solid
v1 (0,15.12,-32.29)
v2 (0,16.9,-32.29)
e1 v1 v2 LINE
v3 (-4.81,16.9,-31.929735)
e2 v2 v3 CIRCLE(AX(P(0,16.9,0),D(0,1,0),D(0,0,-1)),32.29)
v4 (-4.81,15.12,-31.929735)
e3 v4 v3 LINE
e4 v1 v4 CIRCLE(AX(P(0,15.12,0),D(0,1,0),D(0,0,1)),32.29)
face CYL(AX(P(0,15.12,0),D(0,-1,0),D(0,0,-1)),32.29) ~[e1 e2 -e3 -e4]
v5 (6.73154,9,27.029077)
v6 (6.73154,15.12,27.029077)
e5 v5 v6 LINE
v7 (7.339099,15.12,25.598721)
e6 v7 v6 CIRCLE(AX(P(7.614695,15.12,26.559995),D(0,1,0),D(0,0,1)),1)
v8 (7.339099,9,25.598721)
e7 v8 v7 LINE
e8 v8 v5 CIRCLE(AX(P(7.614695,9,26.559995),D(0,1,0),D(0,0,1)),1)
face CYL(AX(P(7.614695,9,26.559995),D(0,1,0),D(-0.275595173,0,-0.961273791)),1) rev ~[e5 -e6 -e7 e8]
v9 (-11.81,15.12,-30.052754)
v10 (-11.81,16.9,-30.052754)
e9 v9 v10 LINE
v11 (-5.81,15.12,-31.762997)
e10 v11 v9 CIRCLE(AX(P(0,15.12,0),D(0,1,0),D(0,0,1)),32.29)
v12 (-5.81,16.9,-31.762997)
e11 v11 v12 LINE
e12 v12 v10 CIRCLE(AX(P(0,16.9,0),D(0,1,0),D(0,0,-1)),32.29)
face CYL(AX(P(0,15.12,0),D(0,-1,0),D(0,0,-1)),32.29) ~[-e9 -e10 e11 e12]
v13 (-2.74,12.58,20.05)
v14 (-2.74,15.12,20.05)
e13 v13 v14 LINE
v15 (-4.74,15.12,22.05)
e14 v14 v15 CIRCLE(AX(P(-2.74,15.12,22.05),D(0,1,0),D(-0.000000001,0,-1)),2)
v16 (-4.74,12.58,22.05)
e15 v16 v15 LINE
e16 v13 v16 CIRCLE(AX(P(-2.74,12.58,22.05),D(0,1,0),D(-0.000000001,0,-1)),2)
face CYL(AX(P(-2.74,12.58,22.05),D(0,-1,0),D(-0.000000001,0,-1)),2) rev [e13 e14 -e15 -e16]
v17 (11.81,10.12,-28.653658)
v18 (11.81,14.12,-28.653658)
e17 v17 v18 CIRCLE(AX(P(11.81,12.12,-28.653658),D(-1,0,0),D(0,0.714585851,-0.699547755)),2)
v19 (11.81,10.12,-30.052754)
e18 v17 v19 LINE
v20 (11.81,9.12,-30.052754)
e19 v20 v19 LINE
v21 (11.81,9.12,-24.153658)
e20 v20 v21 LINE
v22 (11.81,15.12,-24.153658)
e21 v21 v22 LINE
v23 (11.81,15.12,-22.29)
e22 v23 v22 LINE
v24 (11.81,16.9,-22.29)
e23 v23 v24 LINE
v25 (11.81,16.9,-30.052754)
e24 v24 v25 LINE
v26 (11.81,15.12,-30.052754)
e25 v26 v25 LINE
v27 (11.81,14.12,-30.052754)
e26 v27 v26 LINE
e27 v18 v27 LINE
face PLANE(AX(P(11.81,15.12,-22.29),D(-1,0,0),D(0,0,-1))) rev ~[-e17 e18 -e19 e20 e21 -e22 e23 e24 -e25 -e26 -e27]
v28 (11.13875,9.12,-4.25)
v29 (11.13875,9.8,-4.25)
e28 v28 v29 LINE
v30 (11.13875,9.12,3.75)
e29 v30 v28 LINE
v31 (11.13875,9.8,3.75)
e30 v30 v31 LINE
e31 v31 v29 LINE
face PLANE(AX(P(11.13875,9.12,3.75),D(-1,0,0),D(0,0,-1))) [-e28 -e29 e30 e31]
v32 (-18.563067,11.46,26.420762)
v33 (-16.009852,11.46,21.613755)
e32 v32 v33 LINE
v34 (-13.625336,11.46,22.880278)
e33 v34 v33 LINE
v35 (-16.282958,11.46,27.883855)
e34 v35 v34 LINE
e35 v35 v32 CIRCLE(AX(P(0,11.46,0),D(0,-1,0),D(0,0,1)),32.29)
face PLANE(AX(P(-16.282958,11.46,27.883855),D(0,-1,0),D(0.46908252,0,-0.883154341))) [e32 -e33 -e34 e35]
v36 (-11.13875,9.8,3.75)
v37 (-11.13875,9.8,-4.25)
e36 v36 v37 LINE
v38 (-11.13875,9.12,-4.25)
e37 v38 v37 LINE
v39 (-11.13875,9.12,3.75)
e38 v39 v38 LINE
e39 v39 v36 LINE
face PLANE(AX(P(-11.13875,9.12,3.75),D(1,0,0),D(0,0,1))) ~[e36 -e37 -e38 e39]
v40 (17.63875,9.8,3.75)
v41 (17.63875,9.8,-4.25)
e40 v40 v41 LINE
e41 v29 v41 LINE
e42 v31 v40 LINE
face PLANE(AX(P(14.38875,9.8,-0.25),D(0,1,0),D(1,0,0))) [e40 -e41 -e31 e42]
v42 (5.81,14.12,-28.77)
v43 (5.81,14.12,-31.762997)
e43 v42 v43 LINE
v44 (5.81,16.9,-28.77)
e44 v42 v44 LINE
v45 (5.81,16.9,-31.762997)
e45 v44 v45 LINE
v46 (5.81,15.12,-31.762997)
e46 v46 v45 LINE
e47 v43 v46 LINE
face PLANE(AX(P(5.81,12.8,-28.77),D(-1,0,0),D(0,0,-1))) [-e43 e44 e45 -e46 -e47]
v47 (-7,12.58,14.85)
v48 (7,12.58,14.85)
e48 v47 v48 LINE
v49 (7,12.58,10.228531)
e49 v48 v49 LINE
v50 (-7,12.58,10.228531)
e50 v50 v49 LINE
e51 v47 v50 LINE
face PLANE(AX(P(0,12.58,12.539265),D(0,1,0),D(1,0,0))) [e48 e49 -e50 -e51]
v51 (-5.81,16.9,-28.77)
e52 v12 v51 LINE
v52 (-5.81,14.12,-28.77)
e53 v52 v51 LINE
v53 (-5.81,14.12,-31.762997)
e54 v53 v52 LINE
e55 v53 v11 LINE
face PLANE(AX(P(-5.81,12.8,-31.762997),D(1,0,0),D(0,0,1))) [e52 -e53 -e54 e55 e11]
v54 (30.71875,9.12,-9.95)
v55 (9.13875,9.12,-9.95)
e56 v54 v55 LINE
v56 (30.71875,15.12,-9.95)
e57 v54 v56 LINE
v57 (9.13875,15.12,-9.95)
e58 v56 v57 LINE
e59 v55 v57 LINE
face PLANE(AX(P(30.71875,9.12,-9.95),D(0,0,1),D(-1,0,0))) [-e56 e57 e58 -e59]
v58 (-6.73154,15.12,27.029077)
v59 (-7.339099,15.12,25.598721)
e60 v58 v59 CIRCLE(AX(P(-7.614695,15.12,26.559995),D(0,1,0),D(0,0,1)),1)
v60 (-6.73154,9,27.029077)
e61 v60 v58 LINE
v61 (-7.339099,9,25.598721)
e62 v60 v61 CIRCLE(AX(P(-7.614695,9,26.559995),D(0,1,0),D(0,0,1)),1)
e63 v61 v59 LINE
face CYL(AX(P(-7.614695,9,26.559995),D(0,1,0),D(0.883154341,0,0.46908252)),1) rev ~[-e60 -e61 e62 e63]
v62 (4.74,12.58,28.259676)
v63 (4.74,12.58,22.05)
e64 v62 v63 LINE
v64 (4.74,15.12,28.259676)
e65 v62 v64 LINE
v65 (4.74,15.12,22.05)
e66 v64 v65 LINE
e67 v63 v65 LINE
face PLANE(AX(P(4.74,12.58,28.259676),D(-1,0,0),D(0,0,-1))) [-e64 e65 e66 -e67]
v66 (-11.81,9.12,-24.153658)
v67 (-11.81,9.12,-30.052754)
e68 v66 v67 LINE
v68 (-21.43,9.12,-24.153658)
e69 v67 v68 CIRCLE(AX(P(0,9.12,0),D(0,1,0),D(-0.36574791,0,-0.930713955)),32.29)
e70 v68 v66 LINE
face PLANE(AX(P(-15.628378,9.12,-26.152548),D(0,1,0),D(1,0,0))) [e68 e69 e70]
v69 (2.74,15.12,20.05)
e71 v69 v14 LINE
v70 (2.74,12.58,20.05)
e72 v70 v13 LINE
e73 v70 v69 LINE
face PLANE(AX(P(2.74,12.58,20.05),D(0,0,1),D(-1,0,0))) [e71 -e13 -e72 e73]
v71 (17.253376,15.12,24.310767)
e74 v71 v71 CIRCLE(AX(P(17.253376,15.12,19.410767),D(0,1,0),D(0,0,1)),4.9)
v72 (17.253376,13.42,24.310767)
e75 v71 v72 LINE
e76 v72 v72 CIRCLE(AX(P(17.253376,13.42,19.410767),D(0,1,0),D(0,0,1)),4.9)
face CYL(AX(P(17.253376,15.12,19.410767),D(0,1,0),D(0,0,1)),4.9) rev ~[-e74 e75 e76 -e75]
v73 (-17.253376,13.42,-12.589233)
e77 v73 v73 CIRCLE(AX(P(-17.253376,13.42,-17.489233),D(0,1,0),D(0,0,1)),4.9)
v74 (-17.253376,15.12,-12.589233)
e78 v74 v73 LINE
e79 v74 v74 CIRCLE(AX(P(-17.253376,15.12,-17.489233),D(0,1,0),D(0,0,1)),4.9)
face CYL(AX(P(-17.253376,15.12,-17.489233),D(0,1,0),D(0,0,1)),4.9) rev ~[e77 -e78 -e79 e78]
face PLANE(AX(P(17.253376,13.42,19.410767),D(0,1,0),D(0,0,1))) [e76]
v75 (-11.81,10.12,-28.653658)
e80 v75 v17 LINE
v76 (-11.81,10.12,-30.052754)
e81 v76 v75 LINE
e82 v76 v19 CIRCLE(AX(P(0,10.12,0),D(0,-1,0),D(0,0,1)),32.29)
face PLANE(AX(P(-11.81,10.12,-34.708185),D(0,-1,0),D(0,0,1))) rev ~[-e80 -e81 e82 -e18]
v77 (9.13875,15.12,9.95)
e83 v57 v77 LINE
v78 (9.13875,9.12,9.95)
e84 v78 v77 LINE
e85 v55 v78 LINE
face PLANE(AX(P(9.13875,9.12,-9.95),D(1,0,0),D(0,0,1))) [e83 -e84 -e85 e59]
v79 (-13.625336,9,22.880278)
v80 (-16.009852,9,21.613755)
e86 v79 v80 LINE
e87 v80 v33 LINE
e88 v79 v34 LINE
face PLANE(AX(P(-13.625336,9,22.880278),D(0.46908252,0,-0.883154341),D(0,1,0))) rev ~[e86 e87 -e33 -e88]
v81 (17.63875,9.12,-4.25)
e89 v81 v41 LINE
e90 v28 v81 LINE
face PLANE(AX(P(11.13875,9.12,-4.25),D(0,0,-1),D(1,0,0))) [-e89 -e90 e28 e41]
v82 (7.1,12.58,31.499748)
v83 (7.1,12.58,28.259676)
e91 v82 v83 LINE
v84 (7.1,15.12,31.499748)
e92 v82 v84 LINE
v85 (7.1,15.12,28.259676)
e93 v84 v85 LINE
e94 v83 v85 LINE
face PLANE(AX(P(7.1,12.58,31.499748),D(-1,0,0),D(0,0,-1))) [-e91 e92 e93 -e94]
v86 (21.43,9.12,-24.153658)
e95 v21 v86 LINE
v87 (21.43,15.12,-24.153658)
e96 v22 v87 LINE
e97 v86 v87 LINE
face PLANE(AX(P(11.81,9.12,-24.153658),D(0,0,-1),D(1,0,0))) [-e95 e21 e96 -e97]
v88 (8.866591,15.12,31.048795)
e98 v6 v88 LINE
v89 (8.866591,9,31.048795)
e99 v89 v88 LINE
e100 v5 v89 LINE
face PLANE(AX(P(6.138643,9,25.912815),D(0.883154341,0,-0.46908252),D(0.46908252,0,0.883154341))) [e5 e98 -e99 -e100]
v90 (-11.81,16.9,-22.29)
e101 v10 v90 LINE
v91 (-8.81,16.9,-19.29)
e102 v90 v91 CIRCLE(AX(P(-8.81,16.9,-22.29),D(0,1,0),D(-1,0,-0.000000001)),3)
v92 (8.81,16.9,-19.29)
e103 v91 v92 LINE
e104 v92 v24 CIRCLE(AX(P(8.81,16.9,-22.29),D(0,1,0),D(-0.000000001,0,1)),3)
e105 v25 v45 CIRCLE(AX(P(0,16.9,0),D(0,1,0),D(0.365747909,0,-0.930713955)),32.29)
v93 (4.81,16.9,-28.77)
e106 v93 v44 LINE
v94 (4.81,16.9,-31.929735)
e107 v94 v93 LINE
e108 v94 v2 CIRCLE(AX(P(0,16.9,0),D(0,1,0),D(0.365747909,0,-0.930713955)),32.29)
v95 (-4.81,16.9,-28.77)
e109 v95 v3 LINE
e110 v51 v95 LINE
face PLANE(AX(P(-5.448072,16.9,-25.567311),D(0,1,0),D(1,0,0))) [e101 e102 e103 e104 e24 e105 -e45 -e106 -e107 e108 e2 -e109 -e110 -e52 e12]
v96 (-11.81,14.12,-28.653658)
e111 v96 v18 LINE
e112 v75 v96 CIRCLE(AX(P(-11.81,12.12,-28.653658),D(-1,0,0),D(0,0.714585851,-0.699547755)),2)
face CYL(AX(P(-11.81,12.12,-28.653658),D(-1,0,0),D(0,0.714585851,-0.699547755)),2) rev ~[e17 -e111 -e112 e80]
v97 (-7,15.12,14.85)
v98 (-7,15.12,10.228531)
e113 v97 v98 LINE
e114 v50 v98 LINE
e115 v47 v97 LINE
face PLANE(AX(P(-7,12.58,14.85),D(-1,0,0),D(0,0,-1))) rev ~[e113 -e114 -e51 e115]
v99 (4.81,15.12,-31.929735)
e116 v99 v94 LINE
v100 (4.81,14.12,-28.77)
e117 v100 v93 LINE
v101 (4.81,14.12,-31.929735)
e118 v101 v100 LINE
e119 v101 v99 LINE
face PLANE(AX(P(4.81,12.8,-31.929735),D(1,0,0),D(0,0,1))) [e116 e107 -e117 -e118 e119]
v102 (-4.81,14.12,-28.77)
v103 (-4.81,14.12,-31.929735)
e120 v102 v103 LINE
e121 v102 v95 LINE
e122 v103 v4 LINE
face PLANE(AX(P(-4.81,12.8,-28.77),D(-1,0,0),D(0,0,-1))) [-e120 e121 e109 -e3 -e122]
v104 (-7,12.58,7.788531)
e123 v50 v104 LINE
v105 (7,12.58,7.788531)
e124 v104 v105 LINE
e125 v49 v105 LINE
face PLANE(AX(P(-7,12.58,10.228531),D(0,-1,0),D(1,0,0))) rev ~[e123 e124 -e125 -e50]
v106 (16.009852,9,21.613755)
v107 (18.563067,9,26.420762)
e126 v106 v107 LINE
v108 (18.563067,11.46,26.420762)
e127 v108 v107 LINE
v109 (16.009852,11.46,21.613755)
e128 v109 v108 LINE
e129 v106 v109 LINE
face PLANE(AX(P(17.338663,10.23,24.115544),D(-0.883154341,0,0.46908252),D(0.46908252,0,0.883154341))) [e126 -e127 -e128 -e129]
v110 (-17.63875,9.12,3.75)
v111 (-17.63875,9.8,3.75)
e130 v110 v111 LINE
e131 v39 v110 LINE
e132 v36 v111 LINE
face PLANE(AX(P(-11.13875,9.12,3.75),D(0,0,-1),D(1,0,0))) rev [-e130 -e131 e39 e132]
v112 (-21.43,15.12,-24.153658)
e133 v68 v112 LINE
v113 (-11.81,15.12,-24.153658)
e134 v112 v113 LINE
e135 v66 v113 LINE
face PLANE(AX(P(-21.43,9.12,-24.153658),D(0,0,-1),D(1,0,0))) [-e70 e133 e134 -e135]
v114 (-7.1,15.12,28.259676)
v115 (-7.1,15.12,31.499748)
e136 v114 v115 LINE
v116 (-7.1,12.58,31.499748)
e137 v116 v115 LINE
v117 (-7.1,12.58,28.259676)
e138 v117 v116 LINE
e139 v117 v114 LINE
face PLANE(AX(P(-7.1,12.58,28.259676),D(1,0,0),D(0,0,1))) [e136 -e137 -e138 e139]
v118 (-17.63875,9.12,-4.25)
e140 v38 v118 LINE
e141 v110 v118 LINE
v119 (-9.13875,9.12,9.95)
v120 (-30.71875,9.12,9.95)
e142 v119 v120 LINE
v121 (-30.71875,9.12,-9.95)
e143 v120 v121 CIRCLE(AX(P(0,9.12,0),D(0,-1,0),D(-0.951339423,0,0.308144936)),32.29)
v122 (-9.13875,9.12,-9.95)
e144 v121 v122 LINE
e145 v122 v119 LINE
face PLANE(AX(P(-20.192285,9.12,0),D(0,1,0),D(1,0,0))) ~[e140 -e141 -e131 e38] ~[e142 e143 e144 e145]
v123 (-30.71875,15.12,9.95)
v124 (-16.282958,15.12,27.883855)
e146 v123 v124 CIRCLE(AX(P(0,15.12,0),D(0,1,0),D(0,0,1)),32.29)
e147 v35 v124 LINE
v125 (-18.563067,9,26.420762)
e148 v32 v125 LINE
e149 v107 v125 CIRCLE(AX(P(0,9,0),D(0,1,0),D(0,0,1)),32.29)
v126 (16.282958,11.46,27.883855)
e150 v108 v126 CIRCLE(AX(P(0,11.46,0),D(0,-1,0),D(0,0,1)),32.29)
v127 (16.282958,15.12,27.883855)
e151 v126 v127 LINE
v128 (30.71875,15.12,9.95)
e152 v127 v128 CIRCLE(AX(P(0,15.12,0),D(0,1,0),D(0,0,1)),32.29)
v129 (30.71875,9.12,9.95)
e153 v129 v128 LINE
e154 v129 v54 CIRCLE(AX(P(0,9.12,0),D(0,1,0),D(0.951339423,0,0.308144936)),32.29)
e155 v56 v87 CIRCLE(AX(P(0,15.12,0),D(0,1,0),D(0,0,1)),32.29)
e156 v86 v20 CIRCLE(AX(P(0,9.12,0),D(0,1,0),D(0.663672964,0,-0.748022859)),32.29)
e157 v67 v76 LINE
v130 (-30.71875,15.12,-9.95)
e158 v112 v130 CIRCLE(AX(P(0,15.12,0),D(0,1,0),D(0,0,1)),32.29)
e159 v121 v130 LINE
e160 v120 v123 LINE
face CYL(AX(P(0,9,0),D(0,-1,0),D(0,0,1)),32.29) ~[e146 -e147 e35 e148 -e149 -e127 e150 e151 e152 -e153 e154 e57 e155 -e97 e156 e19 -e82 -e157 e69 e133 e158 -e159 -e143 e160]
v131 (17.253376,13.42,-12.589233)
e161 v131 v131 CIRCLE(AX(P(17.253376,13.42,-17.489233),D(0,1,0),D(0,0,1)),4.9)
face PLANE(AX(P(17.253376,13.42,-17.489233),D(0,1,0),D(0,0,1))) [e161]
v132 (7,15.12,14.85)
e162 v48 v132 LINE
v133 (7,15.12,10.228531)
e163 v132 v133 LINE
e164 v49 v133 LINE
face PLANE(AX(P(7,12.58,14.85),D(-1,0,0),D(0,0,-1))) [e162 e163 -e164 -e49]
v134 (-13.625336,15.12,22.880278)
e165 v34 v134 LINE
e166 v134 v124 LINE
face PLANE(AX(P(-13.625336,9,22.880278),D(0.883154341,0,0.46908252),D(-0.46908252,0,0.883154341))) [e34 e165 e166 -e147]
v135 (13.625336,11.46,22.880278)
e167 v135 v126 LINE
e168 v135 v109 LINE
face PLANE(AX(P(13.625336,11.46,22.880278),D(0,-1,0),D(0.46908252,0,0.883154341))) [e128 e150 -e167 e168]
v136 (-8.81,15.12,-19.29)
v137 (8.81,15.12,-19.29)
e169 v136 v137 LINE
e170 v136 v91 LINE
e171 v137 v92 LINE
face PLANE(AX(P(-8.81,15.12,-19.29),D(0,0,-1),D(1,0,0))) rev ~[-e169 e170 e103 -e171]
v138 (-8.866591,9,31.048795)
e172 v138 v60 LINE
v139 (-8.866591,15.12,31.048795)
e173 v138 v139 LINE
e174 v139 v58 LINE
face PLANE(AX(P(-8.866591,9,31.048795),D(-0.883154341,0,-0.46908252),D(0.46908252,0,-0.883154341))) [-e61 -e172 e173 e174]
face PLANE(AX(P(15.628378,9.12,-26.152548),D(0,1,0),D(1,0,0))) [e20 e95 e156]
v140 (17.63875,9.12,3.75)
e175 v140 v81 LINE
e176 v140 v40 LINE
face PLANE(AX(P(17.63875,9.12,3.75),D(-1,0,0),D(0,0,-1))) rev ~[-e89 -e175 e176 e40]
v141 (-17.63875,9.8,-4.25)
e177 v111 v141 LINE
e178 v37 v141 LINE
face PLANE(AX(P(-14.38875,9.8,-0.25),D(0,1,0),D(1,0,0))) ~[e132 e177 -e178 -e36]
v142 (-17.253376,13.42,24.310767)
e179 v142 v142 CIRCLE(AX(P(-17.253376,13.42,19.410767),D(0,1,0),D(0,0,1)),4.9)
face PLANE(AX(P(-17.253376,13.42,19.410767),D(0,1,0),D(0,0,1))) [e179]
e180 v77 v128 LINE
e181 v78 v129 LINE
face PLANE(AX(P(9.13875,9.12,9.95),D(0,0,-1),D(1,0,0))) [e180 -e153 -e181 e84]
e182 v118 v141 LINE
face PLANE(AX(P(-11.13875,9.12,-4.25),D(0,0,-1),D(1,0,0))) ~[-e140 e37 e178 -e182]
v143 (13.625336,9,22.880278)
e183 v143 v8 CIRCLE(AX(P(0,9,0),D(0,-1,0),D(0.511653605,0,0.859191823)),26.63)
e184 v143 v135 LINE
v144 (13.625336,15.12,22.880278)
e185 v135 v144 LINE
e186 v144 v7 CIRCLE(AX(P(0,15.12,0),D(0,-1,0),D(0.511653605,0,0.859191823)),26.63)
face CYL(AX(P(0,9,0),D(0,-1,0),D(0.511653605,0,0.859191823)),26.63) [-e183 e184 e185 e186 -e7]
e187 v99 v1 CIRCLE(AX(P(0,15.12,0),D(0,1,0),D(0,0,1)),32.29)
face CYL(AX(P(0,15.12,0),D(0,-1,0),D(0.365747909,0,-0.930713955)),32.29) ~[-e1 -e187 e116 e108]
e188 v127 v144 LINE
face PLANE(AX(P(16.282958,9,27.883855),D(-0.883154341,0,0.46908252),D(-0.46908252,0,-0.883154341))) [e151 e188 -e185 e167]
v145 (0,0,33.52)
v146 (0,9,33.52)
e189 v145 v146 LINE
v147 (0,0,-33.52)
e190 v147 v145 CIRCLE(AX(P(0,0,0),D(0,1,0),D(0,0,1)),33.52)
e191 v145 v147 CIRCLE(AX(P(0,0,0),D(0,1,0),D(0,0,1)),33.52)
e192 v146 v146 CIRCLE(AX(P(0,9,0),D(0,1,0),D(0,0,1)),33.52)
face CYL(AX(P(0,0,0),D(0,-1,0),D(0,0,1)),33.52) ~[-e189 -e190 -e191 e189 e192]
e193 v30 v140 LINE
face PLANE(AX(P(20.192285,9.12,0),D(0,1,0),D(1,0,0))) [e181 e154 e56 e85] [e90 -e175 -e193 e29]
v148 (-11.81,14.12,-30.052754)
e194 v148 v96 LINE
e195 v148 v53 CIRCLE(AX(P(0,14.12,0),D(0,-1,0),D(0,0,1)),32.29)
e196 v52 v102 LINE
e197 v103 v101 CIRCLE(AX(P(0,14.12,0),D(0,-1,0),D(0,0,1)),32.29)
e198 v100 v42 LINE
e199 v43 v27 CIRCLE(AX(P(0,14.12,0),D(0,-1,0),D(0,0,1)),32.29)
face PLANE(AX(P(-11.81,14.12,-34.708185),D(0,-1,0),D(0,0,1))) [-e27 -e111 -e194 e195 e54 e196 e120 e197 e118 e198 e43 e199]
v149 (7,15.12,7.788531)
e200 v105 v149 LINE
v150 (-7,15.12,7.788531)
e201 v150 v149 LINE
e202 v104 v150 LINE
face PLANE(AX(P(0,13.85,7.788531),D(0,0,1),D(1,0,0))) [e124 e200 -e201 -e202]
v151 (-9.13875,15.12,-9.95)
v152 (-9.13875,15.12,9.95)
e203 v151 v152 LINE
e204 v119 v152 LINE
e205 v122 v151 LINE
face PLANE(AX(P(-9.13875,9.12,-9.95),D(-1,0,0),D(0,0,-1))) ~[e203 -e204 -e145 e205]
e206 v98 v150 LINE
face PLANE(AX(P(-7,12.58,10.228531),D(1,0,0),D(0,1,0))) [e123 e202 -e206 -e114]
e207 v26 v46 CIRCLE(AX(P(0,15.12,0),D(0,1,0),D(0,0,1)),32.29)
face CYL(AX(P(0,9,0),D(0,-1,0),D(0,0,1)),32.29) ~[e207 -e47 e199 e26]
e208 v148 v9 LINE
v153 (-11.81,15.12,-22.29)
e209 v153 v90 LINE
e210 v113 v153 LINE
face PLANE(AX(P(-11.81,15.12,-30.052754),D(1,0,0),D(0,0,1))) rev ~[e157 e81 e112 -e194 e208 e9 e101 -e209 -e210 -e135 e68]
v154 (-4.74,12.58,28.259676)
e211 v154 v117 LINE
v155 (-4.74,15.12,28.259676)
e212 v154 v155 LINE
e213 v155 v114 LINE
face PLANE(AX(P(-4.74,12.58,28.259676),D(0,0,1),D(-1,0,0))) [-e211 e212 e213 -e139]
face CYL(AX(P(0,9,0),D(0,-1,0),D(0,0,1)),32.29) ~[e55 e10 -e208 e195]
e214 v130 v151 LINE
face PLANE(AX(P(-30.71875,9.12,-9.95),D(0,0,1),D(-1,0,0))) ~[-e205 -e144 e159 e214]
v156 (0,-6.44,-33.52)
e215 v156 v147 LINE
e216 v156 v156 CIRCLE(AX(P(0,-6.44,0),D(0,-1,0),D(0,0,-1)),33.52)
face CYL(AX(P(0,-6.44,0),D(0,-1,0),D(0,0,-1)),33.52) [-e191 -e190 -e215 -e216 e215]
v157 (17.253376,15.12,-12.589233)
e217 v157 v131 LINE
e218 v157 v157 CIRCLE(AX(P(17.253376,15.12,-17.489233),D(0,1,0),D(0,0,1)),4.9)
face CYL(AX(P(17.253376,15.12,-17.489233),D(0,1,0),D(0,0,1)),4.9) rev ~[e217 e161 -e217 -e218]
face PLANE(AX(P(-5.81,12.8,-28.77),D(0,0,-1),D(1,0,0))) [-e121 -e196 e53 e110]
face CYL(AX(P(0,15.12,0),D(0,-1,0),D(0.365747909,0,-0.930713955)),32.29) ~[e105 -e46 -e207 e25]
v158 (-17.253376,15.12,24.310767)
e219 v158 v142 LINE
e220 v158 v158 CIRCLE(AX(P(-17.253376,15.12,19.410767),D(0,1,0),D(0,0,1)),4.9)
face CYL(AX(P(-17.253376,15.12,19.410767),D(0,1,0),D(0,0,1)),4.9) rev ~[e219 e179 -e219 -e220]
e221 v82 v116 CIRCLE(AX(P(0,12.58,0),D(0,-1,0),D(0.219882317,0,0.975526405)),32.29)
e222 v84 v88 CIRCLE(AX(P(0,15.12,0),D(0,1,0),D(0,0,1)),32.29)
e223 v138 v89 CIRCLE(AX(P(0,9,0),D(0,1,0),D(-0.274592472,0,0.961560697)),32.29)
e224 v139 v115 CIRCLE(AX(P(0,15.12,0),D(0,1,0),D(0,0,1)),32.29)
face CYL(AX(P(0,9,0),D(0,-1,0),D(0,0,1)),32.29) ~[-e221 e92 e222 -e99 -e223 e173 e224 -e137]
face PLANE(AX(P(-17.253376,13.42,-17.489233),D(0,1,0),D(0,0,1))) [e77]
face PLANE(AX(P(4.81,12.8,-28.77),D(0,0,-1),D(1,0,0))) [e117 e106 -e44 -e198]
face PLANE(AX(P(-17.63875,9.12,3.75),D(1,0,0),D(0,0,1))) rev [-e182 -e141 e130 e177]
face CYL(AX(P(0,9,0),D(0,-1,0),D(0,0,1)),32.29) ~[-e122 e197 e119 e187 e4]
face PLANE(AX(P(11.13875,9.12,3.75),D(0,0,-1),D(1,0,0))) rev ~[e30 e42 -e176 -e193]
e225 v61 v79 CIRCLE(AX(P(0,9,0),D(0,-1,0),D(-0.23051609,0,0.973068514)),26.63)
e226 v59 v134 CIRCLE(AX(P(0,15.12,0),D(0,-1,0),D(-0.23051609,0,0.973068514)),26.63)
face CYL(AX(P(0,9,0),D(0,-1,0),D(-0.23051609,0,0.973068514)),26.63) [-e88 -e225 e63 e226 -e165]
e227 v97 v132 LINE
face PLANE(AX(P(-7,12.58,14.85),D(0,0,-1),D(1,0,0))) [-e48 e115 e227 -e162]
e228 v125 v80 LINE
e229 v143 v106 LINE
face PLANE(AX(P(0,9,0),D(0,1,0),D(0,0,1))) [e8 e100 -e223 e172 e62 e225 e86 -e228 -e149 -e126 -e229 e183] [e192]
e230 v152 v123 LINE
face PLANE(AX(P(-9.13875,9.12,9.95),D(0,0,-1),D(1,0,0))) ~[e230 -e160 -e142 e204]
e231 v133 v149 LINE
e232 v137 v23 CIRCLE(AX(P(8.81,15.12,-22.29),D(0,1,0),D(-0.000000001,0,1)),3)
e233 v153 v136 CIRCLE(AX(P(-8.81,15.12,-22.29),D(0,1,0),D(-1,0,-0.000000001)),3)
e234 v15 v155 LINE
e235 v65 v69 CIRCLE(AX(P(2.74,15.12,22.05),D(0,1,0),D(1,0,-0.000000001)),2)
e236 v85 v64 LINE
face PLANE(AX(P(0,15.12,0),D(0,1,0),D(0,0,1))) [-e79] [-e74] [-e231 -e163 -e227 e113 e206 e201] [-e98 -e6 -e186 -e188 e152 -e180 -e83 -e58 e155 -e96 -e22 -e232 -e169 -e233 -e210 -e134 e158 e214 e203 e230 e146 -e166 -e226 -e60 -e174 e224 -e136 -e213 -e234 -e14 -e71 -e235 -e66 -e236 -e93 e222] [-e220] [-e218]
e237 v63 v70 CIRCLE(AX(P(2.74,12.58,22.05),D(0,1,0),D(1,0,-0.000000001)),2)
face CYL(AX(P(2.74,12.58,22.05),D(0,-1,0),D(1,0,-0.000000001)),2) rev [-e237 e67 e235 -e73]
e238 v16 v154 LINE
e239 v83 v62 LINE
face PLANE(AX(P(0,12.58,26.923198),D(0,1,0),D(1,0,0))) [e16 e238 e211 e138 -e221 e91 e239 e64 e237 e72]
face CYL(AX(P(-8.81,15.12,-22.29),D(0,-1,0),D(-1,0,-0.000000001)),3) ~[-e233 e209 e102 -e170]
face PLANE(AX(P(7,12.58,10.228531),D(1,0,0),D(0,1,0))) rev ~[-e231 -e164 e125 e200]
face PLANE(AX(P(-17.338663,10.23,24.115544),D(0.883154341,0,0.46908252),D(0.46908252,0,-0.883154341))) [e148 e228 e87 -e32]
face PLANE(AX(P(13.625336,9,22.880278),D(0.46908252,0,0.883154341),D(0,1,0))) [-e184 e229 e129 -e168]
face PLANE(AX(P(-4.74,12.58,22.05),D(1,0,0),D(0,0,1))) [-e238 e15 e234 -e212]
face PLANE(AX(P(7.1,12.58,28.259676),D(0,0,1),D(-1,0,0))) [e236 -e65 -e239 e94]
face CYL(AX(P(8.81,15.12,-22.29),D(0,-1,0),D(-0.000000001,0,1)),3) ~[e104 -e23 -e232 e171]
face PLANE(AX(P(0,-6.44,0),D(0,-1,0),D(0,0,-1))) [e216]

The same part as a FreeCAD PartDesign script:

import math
import FreeCAD as App
import Part
import Sketcher
Q = App.Units.Quantity


def edges_at(feature, points):
    """Names of the edges that pass closest to the given points."""
    edges = feature.Shape.Edges
    near = lambda p: min(range(len(edges)), key=lambda i: edges[i].distToShape(Part.Vertex(*p))[0])
    return sorted({f"Edge{near(p) + 1}" for p in points})

doc = App.newDocument("Part")
body = doc.addObject("PartDesign::Body", "Body")

sketch1 = body.newObject("Sketcher::SketchObject", "Sketch")
sketch1.AttachmentSupport = (doc.getObject("XZ_Plane"), [""])
sketch1.MapMode = "FlatFace"
sketch1.addGeometry(Part.Circle(App.Vector(0, 0, 0), App.Vector(0, 0, 1), 34), False)
sketch1.addConstraint([
    Sketcher.Constraint("Coincident", 0, 3, -1, 1),
    Sketcher.Constraint("Diameter", 0, Q("67.04 mm")),
])
pad1 = body.newObject("PartDesign::Pad", "Pad")
pad1.Profile = sketch1
pad1.Length = 9
pad1.Reversed = True

sketch2 = body.newObject("Sketcher::SketchObject", "Sketch001")
sketch2.AttachmentSupport = (doc.getObject("XZ_Plane"), [""])
sketch2.MapMode = "FlatFace"
sketch2.AttachmentOffset = App.Placement(App.Vector(0, 0, -9), App.Rotation())
sketch2.addGeometry(Part.Circle(App.Vector(0, 0, 0), App.Vector(0, 0, 1), 32), False)
sketch2.addConstraint([
    Sketcher.Constraint("Coincident", 0, 3, -1, 1),
    Sketcher.Constraint("Diameter", 0, Q("64.58 mm")),
])
pad2 = body.newObject("PartDesign::Pad", "Pad001")
pad2.Profile = sketch2
pad2.Length = 6.12
pad2.Reversed = True

sketch3 = body.newObject("Sketcher::SketchObject", "Sketch002")
sketch3.AttachmentSupport = (doc.getObject("XZ_Plane"), [""])
sketch3.MapMode = "FlatFace"
sketch3.AttachmentOffset = App.Placement(App.Vector(0, 0, -9.12), App.Rotation())
sketch3.addGeometry([
    Part.LineSegment(App.Vector(-12, -24, 0), App.Vector(-12, -30, 0)),
    Part.ArcOfCircle(Part.Circle(App.Vector(0, 0, 0), App.Vector(0, 0, 1), 32), math.radians(-132), math.radians(-111)),
    Part.LineSegment(App.Vector(-21, -24, 0), App.Vector(-12, -24, 0)),
    Part.ArcOfCircle(Part.Circle(App.Vector(0, 0, 0), App.Vector(0, 0, 1), 32), math.radians(-69), math.radians(-48)),
    Part.LineSegment(App.Vector(12, -30, 0), App.Vector(12, -24, 0)),
    Part.LineSegment(App.Vector(12, -24, 0), App.Vector(21, -24, 0)),
], False)
sketch3.addConstraint([
    Sketcher.Constraint("Coincident", 0, 2, 1, 2),
    Sketcher.Constraint("Coincident", 1, 1, 2, 1),
    Sketcher.Constraint("Coincident", 2, 2, 0, 1),
    Sketcher.Constraint("Coincident", 3, 1, 4, 1),
    Sketcher.Constraint("Coincident", 4, 2, 5, 1),
    Sketcher.Constraint("Coincident", 5, 2, 3, 2),
    Sketcher.Constraint("Vertical", 0),
    Sketcher.Constraint("Horizontal", 2),
    Sketcher.Constraint("Vertical", 4),
    Sketcher.Constraint("Horizontal", 5),
    Sketcher.Constraint("Coincident", 1, 3, -1, 1),
    Sketcher.Constraint("Coincident", 3, 3, -1, 1),
    Sketcher.Constraint("Equal", 1, 3),
    Sketcher.Constraint("Symmetric", 2, 2, 4, 2, -2),
    Sketcher.Constraint("Radius", 1, Q("32.29 mm")),
    Sketcher.Constraint("DistanceX", 2, 1, 2, 2, Q("9.62 mm")),
    Sketcher.Constraint("DistanceX", 0, 2, -1, 1, Q("11.81 mm")),
])
pocket1 = body.newObject("PartDesign::Pocket", "Pocket")
pocket1.Profile = sketch3
pocket1.Length = 6

sketch4 = body.newObject("Sketcher::SketchObject", "Sketch003")
sketch4.AttachmentSupport = (doc.getObject("YZ_Plane"), [""])
sketch4.MapMode = "FlatFace"
sketch4.AttachmentOffset = App.Placement(App.Vector(0, 0, -11.81), App.Rotation())
sketch4.addGeometry(Part.Circle(App.Vector(12.1, -28.7, 0), App.Vector(0, 0, 1), 2), False)
sketch4.addConstraint([
    Sketcher.Constraint("Diameter", 0, Q("4 mm")),
    Sketcher.Constraint("DistanceX", -1, 1, 0, 3, Q("12.12 mm")),
    Sketcher.Constraint("DistanceY", 0, 3, -1, 1, Q("28.653658 mm")),
])
pocket2 = body.newObject("PartDesign::Pocket", "Pocket001")
pocket2.Profile = sketch4
pocket2.Type = "ThroughAll"
pocket2.Reversed = True

sketch5 = body.newObject("Sketcher::SketchObject", "Sketch004")
sketch5.AttachmentSupport = (doc.getObject("YZ_Plane"), [""])
sketch5.MapMode = "FlatFace"
sketch5.AttachmentOffset = App.Placement(App.Vector(0, 0, -11.81), App.Rotation())
sketch5.addGeometry([
    Part.LineSegment(App.Vector(14.1, -34.7, 0), App.Vector(10.1, -34.7, 0)),
    Part.LineSegment(App.Vector(10.1, -34.7, 0), App.Vector(10.1, -28.7, 0)),
    Part.LineSegment(App.Vector(10.1, -28.7, 0), App.Vector(14.1, -28.7, 0)),
    Part.LineSegment(App.Vector(14.1, -28.7, 0), App.Vector(14.1, -34.7, 0)),
], False)
sketch5.addConstraint([
    Sketcher.Constraint("Coincident", 0, 2, 1, 1),
    Sketcher.Constraint("Coincident", 1, 2, 2, 1),
    Sketcher.Constraint("Coincident", 2, 2, 3, 1),
    Sketcher.Constraint("Coincident", 3, 2, 0, 1),
    Sketcher.Constraint("Horizontal", 0),
    Sketcher.Constraint("Vertical", 1),
    Sketcher.Constraint("Horizontal", 2),
    Sketcher.Constraint("Vertical", 3),
    Sketcher.Constraint("DistanceX", 0, 2, 0, 1, Q("4 mm")),
    Sketcher.Constraint("DistanceX", -1, 1, 0, 2, Q("10.12 mm")),
    Sketcher.Constraint("DistanceY", 1, 1, 1, 2, Q("6.054527 mm")),
    Sketcher.Constraint("DistanceY", 1, 2, -1, 1, Q("28.653658 mm")),
])
pocket3 = body.newObject("PartDesign::Pocket", "Pocket002")
pocket3.Profile = sketch5
pocket3.Type = "ThroughAll"
pocket3.Reversed = True

sketch6 = body.newObject("Sketcher::SketchObject", "Sketch005")
sketch6.AttachmentSupport = (doc.getObject("XZ_Plane"), [""])
sketch6.MapMode = "FlatFace"
sketch6.AttachmentOffset = App.Placement(App.Vector(0, 0, -15.12), App.Rotation())
sketch6.addGeometry([
    Part.ArcOfCircle(Part.Circle(App.Vector(0, 0, 0), App.Vector(0, 0, 1), 32.3), math.radians(-111), math.radians(-90)),
    Part.LineSegment(App.Vector(-11.8, -30.1, 0), App.Vector(-11.8, -22.3, 0)),
    Part.ArcOfCircle(Part.Circle(App.Vector(-8.8, -22.3, 0), App.Vector(0, 0, 1), 3), math.radians(90), math.radians(180)),
    Part.LineSegment(App.Vector(-8.8, -19.3, 0), App.Vector(8.8, -19.3, 0)),
    Part.ArcOfCircle(Part.Circle(App.Vector(8.8, -22.3, 0), App.Vector(0, 0, 1), 3), math.radians(0), math.radians(90)),
    Part.LineSegment(App.Vector(11.8, -22.3, 0), App.Vector(11.8, -30.1, 0)),
    Part.ArcOfCircle(Part.Circle(App.Vector(0, 0, 0), App.Vector(0, 0, 1), 32.3), math.radians(-90), math.radians(-69)),
], False)
sketch6.addConstraint([
    Sketcher.Constraint("Coincident", 0, 1, 1, 1),
    Sketcher.Constraint("Tangent", 1, 2, 2, 2),
    Sketcher.Constraint("Tangent", 2, 1, 3, 1),
    Sketcher.Constraint("Tangent", 3, 2, 4, 2),
    Sketcher.Constraint("Tangent", 4, 1, 5, 1),
    Sketcher.Constraint("Coincident", 5, 2, 6, 2),
    Sketcher.Constraint("Tangent", 6, 1, 0, 2),
    Sketcher.Constraint("Vertical", 1),
    Sketcher.Constraint("Horizontal", 3),
    Sketcher.Constraint("Vertical", 5),
    Sketcher.Constraint("Coincident", 0, 3, -1, 1),
    Sketcher.Constraint("Equal", 2, 4),
    Sketcher.Constraint("Equal", 0, 6),
    Sketcher.Constraint("PointOnObject", 6, 1, -2),
    Sketcher.Constraint("Horizontal", 0, 1, 5, 2),
    Sketcher.Constraint("Radius", 2, Q("3 mm")),
    Sketcher.Constraint("Radius", 0, Q("32.29 mm")),
    Sketcher.Constraint("DistanceY", 6, 1, 2, 3, Q("10 mm")),
    Sketcher.Constraint("DistanceX", 3, 1, 3, 2, Q("17.62 mm")),
])
pad3 = body.newObject("PartDesign::Pad", "Pad002")
pad3.Profile = sketch6
pad3.Length = 1.78
pad3.Reversed = True

sketch7 = body.newObject("Sketcher::SketchObject", "Sketch006")
sketch7.AttachmentSupport = (doc.getObject("XZ_Plane"), [""])
sketch7.MapMode = "FlatFace"
sketch7.AttachmentOffset = App.Placement(App.Vector(0, 0, -9.12), App.Rotation())
sketch7.addGeometry([
    Part.ArcOfCircle(Part.Circle(App.Vector(0, 0, 0), App.Vector(0, 0, 1), 32), math.radians(-18), math.radians(18)),
    Part.LineSegment(App.Vector(31, -10, 0), App.Vector(9, -10, 0)),
    Part.LineSegment(App.Vector(9, -10, 0), App.Vector(9, 10, 0)),
    Part.LineSegment(App.Vector(9, 10, 0), App.Vector(31, 10, 0)),
], False)
sketch7.addConstraint([
    Sketcher.Constraint("Coincident", 0, 1, 1, 1),
    Sketcher.Constraint("Coincident", 1, 2, 2, 1),
    Sketcher.Constraint("Coincident", 2, 2, 3, 1),
    Sketcher.Constraint("Coincident", 3, 2, 0, 2),
    Sketcher.Constraint("Horizontal", 1),
    Sketcher.Constraint("Vertical", 2),
    Sketcher.Constraint("Horizontal", 3),
    Sketcher.Constraint("Coincident", 0, 3, -1, 1),
    Sketcher.Constraint("Vertical", 0, 1, 3, 2),
    Sketcher.Constraint("Radius", 0, Q("32.29 mm")),
    Sketcher.Constraint("DistanceY", 2, 1, 2, 2, Q("19.9 mm")),
    Sketcher.Constraint("DistanceX", 1, 2, 1, 1, Q("21.58 mm")),
])
pocket4 = body.newObject("PartDesign::Pocket", "Pocket003")
pocket4.Profile = sketch7
pocket4.Length = 6

sketch8 = body.newObject("Sketcher::SketchObject", "Sketch007")
sketch8.AttachmentSupport = (doc.getObject("XZ_Plane"), [""])
sketch8.MapMode = "FlatFace"
sketch8.AttachmentOffset = App.Placement(App.Vector(0, 0, -12.58), App.Rotation())
sketch8.addGeometry([
    Part.ArcOfCircle(Part.Circle(App.Vector(0, 0, 0), App.Vector(0, 0, 1), 32.3), math.radians(77), math.radians(103)),
    Part.LineSegment(App.Vector(7.1, 31.5, 0), App.Vector(7.1, 28.3, 0)),
    Part.LineSegment(App.Vector(7.1, 28.3, 0), App.Vector(4.7, 28.3, 0)),
    Part.LineSegment(App.Vector(4.7, 28.3, 0), App.Vector(4.7, 22.1, 0)),
    Part.ArcOfCircle(Part.Circle(App.Vector(2.7, 22.1, 0), App.Vector(0, 0, 1), 2), math.radians(-90), math.radians(0)),
    Part.LineSegment(App.Vector(2.7, 20.1, 0), App.Vector(-2.7, 20.1, 0)),
    Part.ArcOfCircle(Part.Circle(App.Vector(-2.7, 22.1, 0), App.Vector(0, 0, 1), 2), math.radians(-180), math.radians(-90)),
    Part.LineSegment(App.Vector(-4.7, 22.1, 0), App.Vector(-4.7, 28.3, 0)),
    Part.LineSegment(App.Vector(-4.7, 28.3, 0), App.Vector(-7.1, 28.3, 0)),
    Part.LineSegment(App.Vector(-7.1, 28.3, 0), App.Vector(-7.1, 31.5, 0)),
    Part.LineSegment(App.Vector(-7, 10.2, 0), App.Vector(-7, 14.8, 0)),
    Part.LineSegment(App.Vector(-7, 14.8, 0), App.Vector(7, 14.8, 0)),
    Part.LineSegment(App.Vector(7, 14.8, 0), App.Vector(7, 10.2, 0)),
    Part.LineSegment(App.Vector(7, 10.2, 0), App.Vector(-7, 10.2, 0)),
], False)
sketch8.addConstraint([
    Sketcher.Constraint("Coincident", 0, 1, 1, 1),
    Sketcher.Constraint("Coincident", 1, 2, 2, 1),
    Sketcher.Constraint("Coincident", 2, 2, 3, 1),
    Sketcher.Constraint("Tangent", 3, 2, 4, 2),
    Sketcher.Constraint("Tangent", 4, 1, 5, 1),
    Sketcher.Constraint("Tangent", 5, 2, 6, 2),
    Sketcher.Constraint("Tangent", 6, 1, 7, 1),
    Sketcher.Constraint("Coincident", 7, 2, 8, 1),
    Sketcher.Constraint("Coincident", 8, 2, 9, 1),
    Sketcher.Constraint("Coincident", 9, 2, 0, 2),
    Sketcher.Constraint("Coincident", 10, 2, 11, 1),
    Sketcher.Constraint("Coincident", 11, 2, 12, 1),
    Sketcher.Constraint("Coincident", 12, 2, 13, 1),
    Sketcher.Constraint("Coincident", 13, 2, 10, 1),
    Sketcher.Constraint("Vertical", 1),
    Sketcher.Constraint("Horizontal", 2),
    Sketcher.Constraint("Vertical", 3),
    Sketcher.Constraint("Horizontal", 5),
    Sketcher.Constraint("Vertical", 7),
    Sketcher.Constraint("Horizontal", 8),
    Sketcher.Constraint("Vertical", 9),
    Sketcher.Constraint("Vertical", 10),
    Sketcher.Constraint("Horizontal", 11),
    Sketcher.Constraint("Vertical", 12),
    Sketcher.Constraint("Horizontal", 13),
    Sketcher.Constraint("Coincident", 0, 3, -1, 1),
    Sketcher.Constraint("Equal", 4, 6),
    Sketcher.Constraint("Symmetric", 2, 2, 7, 2, -2),
    Sketcher.Constraint("Horizontal", 0, 1, 9, 2),
    Sketcher.Constraint("Radius", 4, Q("2 mm")),
    Sketcher.Constraint("DistanceX", 11, 1, 11, 2, Q("14 mm")),
    Sketcher.Constraint("Radius", 0, Q("32.29 mm")),
    Sketcher.Constraint("DistanceX", 10, 2, -1, 1, Q("7 mm")),
    Sketcher.Constraint("DistanceX", 2, 2, 2, 1, Q("2.36 mm")),
    Sketcher.Constraint("DistanceX", 5, 2, 5, 1, Q("5.48 mm")),
    Sketcher.Constraint("DistanceY", 10, 2, 5, 2, Q("5.2 mm")),
    Sketcher.Constraint("DistanceY", -1, 1, 4, 3, Q("22.05 mm")),
    Sketcher.Constraint("DistanceY", 1, 2, 1, 1, Q("3.240071 mm")),
    Sketcher.Constraint("DistanceY", 10, 1, 10, 2, Q("4.621469 mm")),
])
pocket5 = body.newObject("PartDesign::Pocket", "Pocket004")
pocket5.Profile = sketch8
pocket5.Length = 2.54

sketch9 = body.newObject("Sketcher::SketchObject", "Sketch008")
sketch9.AttachmentSupport = (doc.getObject("XZ_Plane"), [""])
sketch9.MapMode = "FlatFace"
sketch9.AttachmentOffset = App.Placement(App.Vector(0, 0, -9), App.Rotation())
sketch9.addGeometry([
    Part.ArcOfCircle(Part.Circle(App.Vector(0, 0, 0), App.Vector(0, 0, 1), 27), math.radians(103.33), math.radians(120.77)),
    Part.LineSegment(App.Vector(-14, 23, 0), App.Vector(-16, 28, 0)),
    Part.ArcOfCircle(Part.Circle(App.Vector(0, 0, 0), App.Vector(0, 0, 1), 32), math.radians(105.94), math.radians(120.28)),
    Part.LineSegment(App.Vector(-9, 31, 0), App.Vector(-6, 26, 0)),
    Part.ArcOfCircle(Part.Circle(App.Vector(0, 0, 0), App.Vector(0, 0, 1), 27), math.radians(59.23), math.radians(76.67)),
    Part.LineSegment(App.Vector(6, 26, 0), App.Vector(9, 31, 0)),
    Part.ArcOfCircle(Part.Circle(App.Vector(0, 0, 0), App.Vector(0, 0, 1), 32), math.radians(59.72), math.radians(74.06)),
    Part.LineSegment(App.Vector(16, 28, 0), App.Vector(14, 23, 0)),
], False)
sketch9.addConstraint([
    Sketcher.Constraint("Coincident", 0, 2, 1, 1),
    Sketcher.Constraint("Coincident", 1, 2, 2, 2),
    Sketcher.Constraint("Coincident", 2, 1, 3, 1),
    Sketcher.Constraint("Coincident", 3, 2, 0, 1),
    Sketcher.Constraint("Coincident", 4, 2, 5, 1),
    Sketcher.Constraint("Coincident", 5, 2, 6, 2),
    Sketcher.Constraint("Coincident", 6, 1, 7, 1),
    Sketcher.Constraint("Coincident", 7, 2, 4, 1),
    Sketcher.Constraint("Coincident", 0, 3, -1, 1),
    Sketcher.Constraint("Coincident", 2, 3, -1, 1),
    Sketcher.Constraint("Coincident", 4, 3, -1, 1),
    Sketcher.Constraint("Coincident", 6, 3, -1, 1),
    Sketcher.Constraint("Equal", 0, 4),
    Sketcher.Constraint("Equal", 2, 6),
    Sketcher.Constraint("Parallel", 1, 3),
    Sketcher.Constraint("Parallel", 5, 7),
    Sketcher.Constraint("Horizontal", 3, 2, 4, 2),
    Sketcher.Constraint("Horizontal", 2, 1, 5, 2),
    Sketcher.Constraint("Horizontal", 1, 2, 6, 1),
    Sketcher.Constraint("Radius", 0, Q("26.63 mm")),
    Sketcher.Constraint("Radius", 2, Q("32.29 mm")),
    Sketcher.Constraint("DistanceX", 1, 2, 4, 2, Q("22.421601 mm")),
    Sketcher.Constraint("DistanceY", -1, 1, 0, 2, Q("22.880278 mm")),
    Sketcher.Constraint("DistanceX", 2, 1, -1, 1, Q("8.866591 mm")),
])
pocket6 = body.newObject("PartDesign::Pocket", "Pocket005")
pocket6.Profile = sketch9
pocket6.Length = 6.12

sketch10 = body.newObject("Sketcher::SketchObject", "Sketch009")
sketch10.AttachmentSupport = (doc.getObject("XZ_Plane"), [""])
sketch10.MapMode = "FlatFace"
sketch10.AttachmentOffset = App.Placement(App.Vector(0, 0, -15.12), App.Rotation())
sketch10.addGeometry([
    Part.Circle(App.Vector(17.3, -17.5, 0), App.Vector(0, 0, 1), 4.9),
    Part.Circle(App.Vector(17.3, 19.4, 0), App.Vector(0, 0, 1), 4.9),
    Part.Circle(App.Vector(-17.3, 19.4, 0), App.Vector(0, 0, 1), 4.9),
    Part.Circle(App.Vector(-17.3, -17.5, 0), App.Vector(0, 0, 1), 4.9),
], False)
sketch10.addConstraint([
    Sketcher.Constraint("Equal", 0, 1),
    Sketcher.Constraint("Equal", 1, 2),
    Sketcher.Constraint("Equal", 2, 3),
    Sketcher.Constraint("Symmetric", 1, 3, 2, 3, -2),
    Sketcher.Constraint("Symmetric", 0, 3, 3, 3, -2),
    Sketcher.Constraint("Vertical", 0, 3, 1, 3),
    Sketcher.Constraint("Diameter", 0, Q("9.8 mm")),
    Sketcher.Constraint("DistanceY", 0, 3, 1, 3, Q("36.9 mm")),
    Sketcher.Constraint("DistanceX", -1, 1, 0, 3, Q("17.253376 mm")),
    Sketcher.Constraint("DistanceY", 0, 3, -1, 1, Q("17.489233 mm")),
])
pocket7 = body.newObject("PartDesign::Pocket", "Pocket006")
pocket7.Profile = sketch10
pocket7.Length = 1.7
pocket7.Reversed = True

sketch11 = body.newObject("Sketcher::SketchObject", "Sketch010")
sketch11.Placement = App.Placement(App.Vector(1.148574, 0, -0.610059), App.Rotation(App.Vector(0.46908252, 0, 0.883154341), App.Vector(0, 1.000000001, 0), App.Vector(-0.883154341, 0, 0.46908252), "ZXY"))
sketch11.addGeometry([
    Part.LineSegment(App.Vector(26.6, 11.5, 0), App.Vector(26.6, 9, 0)),
    Part.LineSegment(App.Vector(26.6, 9, 0), App.Vector(32.3, 9, 0)),
    Part.LineSegment(App.Vector(32.3, 9, 0), App.Vector(32.3, 11.5, 0)),
    Part.LineSegment(App.Vector(32.3, 11.5, 0), App.Vector(26.6, 11.5, 0)),
], False)
sketch11.addConstraint([
    Sketcher.Constraint("Coincident", 0, 2, 1, 1),
    Sketcher.Constraint("Coincident", 1, 2, 2, 1),
    Sketcher.Constraint("Coincident", 2, 2, 3, 1),
    Sketcher.Constraint("Coincident", 3, 2, 0, 1),
    Sketcher.Constraint("Vertical", 0),
    Sketcher.Constraint("Horizontal", 1),
    Sketcher.Constraint("Vertical", 2),
    Sketcher.Constraint("Horizontal", 3),
    Sketcher.Constraint("DistanceY", -1, 1, 0, 2, Q("9 mm")),
    Sketcher.Constraint("DistanceY", 0, 2, 0, 1, Q("2.46 mm")),
    Sketcher.Constraint("DistanceX", -1, 1, 1, 2, Q("32.263799 mm")),
    Sketcher.Constraint("DistanceX", 1, 1, 1, 2, Q("5.665575 mm")),
])
pocket8 = body.newObject("PartDesign::Pocket", "Pocket007")
pocket8.Profile = sketch11
pocket8.Length = 2.7

sketch12 = body.newObject("Sketcher::SketchObject", "Sketch011")
sketch12.Placement = App.Placement(App.Vector(-1.148574, 0, -0.610059), App.Rotation(App.Vector(0.46908252, 0, -0.883154341), App.Vector(0, 1.000000001, 0), App.Vector(0.883154341, 0, 0.46908252), "ZXY"))
sketch12.addGeometry([
    Part.LineSegment(App.Vector(-32.3, 11.5, 0), App.Vector(-32.3, 9, 0)),
    Part.LineSegment(App.Vector(-32.3, 9, 0), App.Vector(-26.6, 9, 0)),
    Part.LineSegment(App.Vector(-26.6, 9, 0), App.Vector(-26.6, 11.5, 0)),
    Part.LineSegment(App.Vector(-26.6, 11.5, 0), App.Vector(-32.3, 11.5, 0)),
], False)
sketch12.addConstraint([
    Sketcher.Constraint("Coincident", 0, 2, 1, 1),
    Sketcher.Constraint("Coincident", 1, 2, 2, 1),
    Sketcher.Constraint("Coincident", 2, 2, 3, 1),
    Sketcher.Constraint("Coincident", 3, 2, 0, 1),
    Sketcher.Constraint("Vertical", 0),
    Sketcher.Constraint("Horizontal", 1),
    Sketcher.Constraint("Vertical", 2),
    Sketcher.Constraint("Horizontal", 3),
    Sketcher.Constraint("DistanceY", -1, 1, 0, 2, Q("9 mm")),
    Sketcher.Constraint("DistanceY", 0, 2, 0, 1, Q("2.46 mm")),
    Sketcher.Constraint("DistanceX", 0, 2, -1, 1, Q("32.263799 mm")),
    Sketcher.Constraint("DistanceX", 1, 1, 1, 2, Q("5.665575 mm")),
])
pocket9 = body.newObject("PartDesign::Pocket", "Pocket008")
pocket9.Profile = sketch12
pocket9.Length = 2.7

sketch13 = body.newObject("Sketcher::SketchObject", "Sketch012")
sketch13.AttachmentSupport = (doc.getObject("XZ_Plane"), [""])
sketch13.MapMode = "FlatFace"
sketch13.AttachmentOffset = App.Placement(App.Vector(0, 0, -9.12), App.Rotation())
sketch13.addGeometry([
    Part.LineSegment(App.Vector(11, -4, 0), App.Vector(11, 4, 0)),
    Part.LineSegment(App.Vector(11, 4, 0), App.Vector(18, 4, 0)),
    Part.LineSegment(App.Vector(18, 4, 0), App.Vector(18, -4, 0)),
    Part.LineSegment(App.Vector(18, -4, 0), App.Vector(11, -4, 0)),
], False)
sketch13.addConstraint([
    Sketcher.Constraint("Coincident", 0, 2, 1, 1),
    Sketcher.Constraint("Coincident", 1, 2, 2, 1),
    Sketcher.Constraint("Coincident", 2, 2, 3, 1),
    Sketcher.Constraint("Coincident", 3, 2, 0, 1),
    Sketcher.Constraint("Vertical", 0),
    Sketcher.Constraint("Horizontal", 1),
    Sketcher.Constraint("Vertical", 2),
    Sketcher.Constraint("Horizontal", 3),
    Sketcher.Constraint("DistanceY", 0, 1, 0, 2, Q("8 mm")),
    Sketcher.Constraint("DistanceX", 1, 1, 1, 2, Q("6.5 mm")),
    Sketcher.Constraint("DistanceY", -1, 1, 0, 2, Q("3.75 mm")),
    Sketcher.Constraint("DistanceX", -1, 1, 0, 2, Q("11.13875 mm")),
])
pad4 = body.newObject("PartDesign::Pad", "Pad003")
pad4.Profile = sketch13
pad4.Length = 0.68
pad4.Reversed = True

sketch14 = body.newObject("Sketcher::SketchObject", "Sketch013")
sketch14.AttachmentSupport = (doc.getObject("XZ_Plane"), [""])
sketch14.MapMode = "FlatFace"
sketch14.AttachmentOffset = App.Placement(App.Vector(0, 0, -12.8), App.Rotation())
sketch14.addGeometry([
    Part.ArcOfCircle(Part.Circle(App.Vector(0, 0, 0), App.Vector(0, 0, 1), 32.3), math.radians(-100.37), math.radians(-98.57)),
    Part.LineSegment(App.Vector(-5.8, -31.8, 0), App.Vector(-5.8, -28.8, 0)),
    Part.LineSegment(App.Vector(-5.8, -28.8, 0), App.Vector(-4.8, -28.8, 0)),
    Part.LineSegment(App.Vector(-4.8, -28.8, 0), App.Vector(-4.8, -31.9, 0)),
    Part.ArcOfCircle(Part.Circle(App.Vector(0, 0, 0), App.Vector(0, 0, 1), 32.3), math.radians(-81.43), math.radians(-79.63)),
    Part.LineSegment(App.Vector(4.8, -31.9, 0), App.Vector(4.8, -28.8, 0)),
    Part.LineSegment(App.Vector(4.8, -28.8, 0), App.Vector(5.8, -28.8, 0)),
    Part.LineSegment(App.Vector(5.8, -28.8, 0), App.Vector(5.8, -31.8, 0)),
], False)
sketch14.addConstraint([
    Sketcher.Constraint("Coincident", 0, 1, 1, 1),
    Sketcher.Constraint("Coincident", 1, 2, 2, 1),
    Sketcher.Constraint("Coincident", 2, 2, 3, 1),
    Sketcher.Constraint("Coincident", 3, 2, 0, 2),
    Sketcher.Constraint("Coincident", 4, 1, 5, 1),
    Sketcher.Constraint("Coincident", 5, 2, 6, 1),
    Sketcher.Constraint("Coincident", 6, 2, 7, 1),
    Sketcher.Constraint("Coincident", 7, 2, 4, 2),
    Sketcher.Constraint("Vertical", 1),
    Sketcher.Constraint("Horizontal", 2),
    Sketcher.Constraint("Vertical", 3),
    Sketcher.Constraint("Vertical", 5),
    Sketcher.Constraint("Horizontal", 6),
    Sketcher.Constraint("Vertical", 7),
    Sketcher.Constraint("Coincident", 0, 3, -1, 1),
    Sketcher.Constraint("Coincident", 4, 3, -1, 1),
    Sketcher.Constraint("Equal", 0, 4),
    Sketcher.Constraint("Symmetric", 2, 2, 5, 2, -2),
    Sketcher.Constraint("Horizontal", 0, 1, 7, 2),
    Sketcher.Constraint("DistanceX", 2, 1, 2, 2, Q("1 mm")),
    Sketcher.Constraint("DistanceX", 0, 1, -1, 1, Q("5.81 mm")),
    Sketcher.Constraint("DistanceY", 1, 2, -1, 1, Q("28.77 mm")),
    Sketcher.Constraint("Radius", 0, Q("32.290006 mm")),
])
pocket10 = body.newObject("PartDesign::Pocket", "Pocket009")
pocket10.Profile = sketch14
pocket10.Length = 4.1

sketch15 = body.newObject("Sketcher::SketchObject", "Sketch014")
sketch15.AttachmentSupport = (doc.getObject("XZ_Plane"), [""])
sketch15.MapMode = "FlatFace"
sketch15.AttachmentOffset = App.Placement(App.Vector(0, 0, 6.44), App.Rotation())
sketch15.addGeometry(Part.Circle(App.Vector(0, 0, 0), App.Vector(0, 0, 1), 34), False)
sketch15.addConstraint([
    Sketcher.Constraint("Coincident", 0, 3, -1, 1),
    Sketcher.Constraint("Diameter", 0, Q("67.04 mm")),
])
pad5 = body.newObject("PartDesign::Pad", "Pad004")
pad5.Profile = sketch15
pad5.Length = 6.44
pad5.Reversed = True

sketch16 = body.newObject("Sketcher::SketchObject", "Sketch015")
sketch16.AttachmentSupport = (doc.getObject("XY_Plane"), [""])
sketch16.MapMode = "FlatFace"
sketch16.AttachmentOffset = App.Placement(App.Vector(0, 0, 10.228531), App.Rotation())
sketch16.addGeometry([
    Part.LineSegment(App.Vector(-7, 15.1, 0), App.Vector(-7, 12.6, 0)),
    Part.LineSegment(App.Vector(-7, 12.6, 0), App.Vector(7, 12.6, 0)),
    Part.LineSegment(App.Vector(7, 12.6, 0), App.Vector(7, 15.1, 0)),
    Part.LineSegment(App.Vector(7, 15.1, 0), App.Vector(-7, 15.1, 0)),
], False)
sketch16.addConstraint([
    Sketcher.Constraint("Coincident", 0, 2, 1, 1),
    Sketcher.Constraint("Coincident", 1, 2, 2, 1),
    Sketcher.Constraint("Coincident", 2, 2, 3, 1),
    Sketcher.Constraint("Coincident", 3, 2, 0, 1),
    Sketcher.Constraint("Vertical", 0),
    Sketcher.Constraint("Horizontal", 1),
    Sketcher.Constraint("Vertical", 2),
    Sketcher.Constraint("Horizontal", 3),
    Sketcher.Constraint("DistanceX", 1, 1, 1, 2, Q("14 mm")),
    Sketcher.Constraint("DistanceX", 0, 2, -1, 1, Q("7 mm")),
    Sketcher.Constraint("DistanceY", 0, 2, 0, 1, Q("2.54 mm")),
    Sketcher.Constraint("DistanceY", -1, 1, 0, 2, Q("12.58 mm")),
])
pocket11 = body.newObject("PartDesign::Pocket", "Pocket010")
pocket11.Profile = sketch16
pocket11.Length = 2.44
doc.recompute()

mirrored = body.newObject("PartDesign::Mirrored", "Mirrored")
mirrored.Originals = [pocket4]
mirrored.MirrorPlane = (doc.getObject("YZ_Plane"), [""])
body.Tip = mirrored
doc.recompute()

mirrored2 = body.newObject("PartDesign::Mirrored", "Mirrored001")
mirrored2.Originals = [pad4]
mirrored2.MirrorPlane = (doc.getObject("YZ_Plane"), [""])
body.Tip = mirrored2
doc.recompute()

fillet = body.newObject("PartDesign::Fillet", "Fillet")
fillet.Base = (mirrored2, edges_at(mirrored2, [(6.139, 12.06, 25.913)]))
fillet.Radius = 1
doc.recompute()

fillet2 = body.newObject("PartDesign::Fillet", "Fillet001")
fillet2.Base = (fillet, edges_at(fillet, [(-6.139, 12.06, 25.913)]))
fillet2.Radius = 1

doc.recompute()
